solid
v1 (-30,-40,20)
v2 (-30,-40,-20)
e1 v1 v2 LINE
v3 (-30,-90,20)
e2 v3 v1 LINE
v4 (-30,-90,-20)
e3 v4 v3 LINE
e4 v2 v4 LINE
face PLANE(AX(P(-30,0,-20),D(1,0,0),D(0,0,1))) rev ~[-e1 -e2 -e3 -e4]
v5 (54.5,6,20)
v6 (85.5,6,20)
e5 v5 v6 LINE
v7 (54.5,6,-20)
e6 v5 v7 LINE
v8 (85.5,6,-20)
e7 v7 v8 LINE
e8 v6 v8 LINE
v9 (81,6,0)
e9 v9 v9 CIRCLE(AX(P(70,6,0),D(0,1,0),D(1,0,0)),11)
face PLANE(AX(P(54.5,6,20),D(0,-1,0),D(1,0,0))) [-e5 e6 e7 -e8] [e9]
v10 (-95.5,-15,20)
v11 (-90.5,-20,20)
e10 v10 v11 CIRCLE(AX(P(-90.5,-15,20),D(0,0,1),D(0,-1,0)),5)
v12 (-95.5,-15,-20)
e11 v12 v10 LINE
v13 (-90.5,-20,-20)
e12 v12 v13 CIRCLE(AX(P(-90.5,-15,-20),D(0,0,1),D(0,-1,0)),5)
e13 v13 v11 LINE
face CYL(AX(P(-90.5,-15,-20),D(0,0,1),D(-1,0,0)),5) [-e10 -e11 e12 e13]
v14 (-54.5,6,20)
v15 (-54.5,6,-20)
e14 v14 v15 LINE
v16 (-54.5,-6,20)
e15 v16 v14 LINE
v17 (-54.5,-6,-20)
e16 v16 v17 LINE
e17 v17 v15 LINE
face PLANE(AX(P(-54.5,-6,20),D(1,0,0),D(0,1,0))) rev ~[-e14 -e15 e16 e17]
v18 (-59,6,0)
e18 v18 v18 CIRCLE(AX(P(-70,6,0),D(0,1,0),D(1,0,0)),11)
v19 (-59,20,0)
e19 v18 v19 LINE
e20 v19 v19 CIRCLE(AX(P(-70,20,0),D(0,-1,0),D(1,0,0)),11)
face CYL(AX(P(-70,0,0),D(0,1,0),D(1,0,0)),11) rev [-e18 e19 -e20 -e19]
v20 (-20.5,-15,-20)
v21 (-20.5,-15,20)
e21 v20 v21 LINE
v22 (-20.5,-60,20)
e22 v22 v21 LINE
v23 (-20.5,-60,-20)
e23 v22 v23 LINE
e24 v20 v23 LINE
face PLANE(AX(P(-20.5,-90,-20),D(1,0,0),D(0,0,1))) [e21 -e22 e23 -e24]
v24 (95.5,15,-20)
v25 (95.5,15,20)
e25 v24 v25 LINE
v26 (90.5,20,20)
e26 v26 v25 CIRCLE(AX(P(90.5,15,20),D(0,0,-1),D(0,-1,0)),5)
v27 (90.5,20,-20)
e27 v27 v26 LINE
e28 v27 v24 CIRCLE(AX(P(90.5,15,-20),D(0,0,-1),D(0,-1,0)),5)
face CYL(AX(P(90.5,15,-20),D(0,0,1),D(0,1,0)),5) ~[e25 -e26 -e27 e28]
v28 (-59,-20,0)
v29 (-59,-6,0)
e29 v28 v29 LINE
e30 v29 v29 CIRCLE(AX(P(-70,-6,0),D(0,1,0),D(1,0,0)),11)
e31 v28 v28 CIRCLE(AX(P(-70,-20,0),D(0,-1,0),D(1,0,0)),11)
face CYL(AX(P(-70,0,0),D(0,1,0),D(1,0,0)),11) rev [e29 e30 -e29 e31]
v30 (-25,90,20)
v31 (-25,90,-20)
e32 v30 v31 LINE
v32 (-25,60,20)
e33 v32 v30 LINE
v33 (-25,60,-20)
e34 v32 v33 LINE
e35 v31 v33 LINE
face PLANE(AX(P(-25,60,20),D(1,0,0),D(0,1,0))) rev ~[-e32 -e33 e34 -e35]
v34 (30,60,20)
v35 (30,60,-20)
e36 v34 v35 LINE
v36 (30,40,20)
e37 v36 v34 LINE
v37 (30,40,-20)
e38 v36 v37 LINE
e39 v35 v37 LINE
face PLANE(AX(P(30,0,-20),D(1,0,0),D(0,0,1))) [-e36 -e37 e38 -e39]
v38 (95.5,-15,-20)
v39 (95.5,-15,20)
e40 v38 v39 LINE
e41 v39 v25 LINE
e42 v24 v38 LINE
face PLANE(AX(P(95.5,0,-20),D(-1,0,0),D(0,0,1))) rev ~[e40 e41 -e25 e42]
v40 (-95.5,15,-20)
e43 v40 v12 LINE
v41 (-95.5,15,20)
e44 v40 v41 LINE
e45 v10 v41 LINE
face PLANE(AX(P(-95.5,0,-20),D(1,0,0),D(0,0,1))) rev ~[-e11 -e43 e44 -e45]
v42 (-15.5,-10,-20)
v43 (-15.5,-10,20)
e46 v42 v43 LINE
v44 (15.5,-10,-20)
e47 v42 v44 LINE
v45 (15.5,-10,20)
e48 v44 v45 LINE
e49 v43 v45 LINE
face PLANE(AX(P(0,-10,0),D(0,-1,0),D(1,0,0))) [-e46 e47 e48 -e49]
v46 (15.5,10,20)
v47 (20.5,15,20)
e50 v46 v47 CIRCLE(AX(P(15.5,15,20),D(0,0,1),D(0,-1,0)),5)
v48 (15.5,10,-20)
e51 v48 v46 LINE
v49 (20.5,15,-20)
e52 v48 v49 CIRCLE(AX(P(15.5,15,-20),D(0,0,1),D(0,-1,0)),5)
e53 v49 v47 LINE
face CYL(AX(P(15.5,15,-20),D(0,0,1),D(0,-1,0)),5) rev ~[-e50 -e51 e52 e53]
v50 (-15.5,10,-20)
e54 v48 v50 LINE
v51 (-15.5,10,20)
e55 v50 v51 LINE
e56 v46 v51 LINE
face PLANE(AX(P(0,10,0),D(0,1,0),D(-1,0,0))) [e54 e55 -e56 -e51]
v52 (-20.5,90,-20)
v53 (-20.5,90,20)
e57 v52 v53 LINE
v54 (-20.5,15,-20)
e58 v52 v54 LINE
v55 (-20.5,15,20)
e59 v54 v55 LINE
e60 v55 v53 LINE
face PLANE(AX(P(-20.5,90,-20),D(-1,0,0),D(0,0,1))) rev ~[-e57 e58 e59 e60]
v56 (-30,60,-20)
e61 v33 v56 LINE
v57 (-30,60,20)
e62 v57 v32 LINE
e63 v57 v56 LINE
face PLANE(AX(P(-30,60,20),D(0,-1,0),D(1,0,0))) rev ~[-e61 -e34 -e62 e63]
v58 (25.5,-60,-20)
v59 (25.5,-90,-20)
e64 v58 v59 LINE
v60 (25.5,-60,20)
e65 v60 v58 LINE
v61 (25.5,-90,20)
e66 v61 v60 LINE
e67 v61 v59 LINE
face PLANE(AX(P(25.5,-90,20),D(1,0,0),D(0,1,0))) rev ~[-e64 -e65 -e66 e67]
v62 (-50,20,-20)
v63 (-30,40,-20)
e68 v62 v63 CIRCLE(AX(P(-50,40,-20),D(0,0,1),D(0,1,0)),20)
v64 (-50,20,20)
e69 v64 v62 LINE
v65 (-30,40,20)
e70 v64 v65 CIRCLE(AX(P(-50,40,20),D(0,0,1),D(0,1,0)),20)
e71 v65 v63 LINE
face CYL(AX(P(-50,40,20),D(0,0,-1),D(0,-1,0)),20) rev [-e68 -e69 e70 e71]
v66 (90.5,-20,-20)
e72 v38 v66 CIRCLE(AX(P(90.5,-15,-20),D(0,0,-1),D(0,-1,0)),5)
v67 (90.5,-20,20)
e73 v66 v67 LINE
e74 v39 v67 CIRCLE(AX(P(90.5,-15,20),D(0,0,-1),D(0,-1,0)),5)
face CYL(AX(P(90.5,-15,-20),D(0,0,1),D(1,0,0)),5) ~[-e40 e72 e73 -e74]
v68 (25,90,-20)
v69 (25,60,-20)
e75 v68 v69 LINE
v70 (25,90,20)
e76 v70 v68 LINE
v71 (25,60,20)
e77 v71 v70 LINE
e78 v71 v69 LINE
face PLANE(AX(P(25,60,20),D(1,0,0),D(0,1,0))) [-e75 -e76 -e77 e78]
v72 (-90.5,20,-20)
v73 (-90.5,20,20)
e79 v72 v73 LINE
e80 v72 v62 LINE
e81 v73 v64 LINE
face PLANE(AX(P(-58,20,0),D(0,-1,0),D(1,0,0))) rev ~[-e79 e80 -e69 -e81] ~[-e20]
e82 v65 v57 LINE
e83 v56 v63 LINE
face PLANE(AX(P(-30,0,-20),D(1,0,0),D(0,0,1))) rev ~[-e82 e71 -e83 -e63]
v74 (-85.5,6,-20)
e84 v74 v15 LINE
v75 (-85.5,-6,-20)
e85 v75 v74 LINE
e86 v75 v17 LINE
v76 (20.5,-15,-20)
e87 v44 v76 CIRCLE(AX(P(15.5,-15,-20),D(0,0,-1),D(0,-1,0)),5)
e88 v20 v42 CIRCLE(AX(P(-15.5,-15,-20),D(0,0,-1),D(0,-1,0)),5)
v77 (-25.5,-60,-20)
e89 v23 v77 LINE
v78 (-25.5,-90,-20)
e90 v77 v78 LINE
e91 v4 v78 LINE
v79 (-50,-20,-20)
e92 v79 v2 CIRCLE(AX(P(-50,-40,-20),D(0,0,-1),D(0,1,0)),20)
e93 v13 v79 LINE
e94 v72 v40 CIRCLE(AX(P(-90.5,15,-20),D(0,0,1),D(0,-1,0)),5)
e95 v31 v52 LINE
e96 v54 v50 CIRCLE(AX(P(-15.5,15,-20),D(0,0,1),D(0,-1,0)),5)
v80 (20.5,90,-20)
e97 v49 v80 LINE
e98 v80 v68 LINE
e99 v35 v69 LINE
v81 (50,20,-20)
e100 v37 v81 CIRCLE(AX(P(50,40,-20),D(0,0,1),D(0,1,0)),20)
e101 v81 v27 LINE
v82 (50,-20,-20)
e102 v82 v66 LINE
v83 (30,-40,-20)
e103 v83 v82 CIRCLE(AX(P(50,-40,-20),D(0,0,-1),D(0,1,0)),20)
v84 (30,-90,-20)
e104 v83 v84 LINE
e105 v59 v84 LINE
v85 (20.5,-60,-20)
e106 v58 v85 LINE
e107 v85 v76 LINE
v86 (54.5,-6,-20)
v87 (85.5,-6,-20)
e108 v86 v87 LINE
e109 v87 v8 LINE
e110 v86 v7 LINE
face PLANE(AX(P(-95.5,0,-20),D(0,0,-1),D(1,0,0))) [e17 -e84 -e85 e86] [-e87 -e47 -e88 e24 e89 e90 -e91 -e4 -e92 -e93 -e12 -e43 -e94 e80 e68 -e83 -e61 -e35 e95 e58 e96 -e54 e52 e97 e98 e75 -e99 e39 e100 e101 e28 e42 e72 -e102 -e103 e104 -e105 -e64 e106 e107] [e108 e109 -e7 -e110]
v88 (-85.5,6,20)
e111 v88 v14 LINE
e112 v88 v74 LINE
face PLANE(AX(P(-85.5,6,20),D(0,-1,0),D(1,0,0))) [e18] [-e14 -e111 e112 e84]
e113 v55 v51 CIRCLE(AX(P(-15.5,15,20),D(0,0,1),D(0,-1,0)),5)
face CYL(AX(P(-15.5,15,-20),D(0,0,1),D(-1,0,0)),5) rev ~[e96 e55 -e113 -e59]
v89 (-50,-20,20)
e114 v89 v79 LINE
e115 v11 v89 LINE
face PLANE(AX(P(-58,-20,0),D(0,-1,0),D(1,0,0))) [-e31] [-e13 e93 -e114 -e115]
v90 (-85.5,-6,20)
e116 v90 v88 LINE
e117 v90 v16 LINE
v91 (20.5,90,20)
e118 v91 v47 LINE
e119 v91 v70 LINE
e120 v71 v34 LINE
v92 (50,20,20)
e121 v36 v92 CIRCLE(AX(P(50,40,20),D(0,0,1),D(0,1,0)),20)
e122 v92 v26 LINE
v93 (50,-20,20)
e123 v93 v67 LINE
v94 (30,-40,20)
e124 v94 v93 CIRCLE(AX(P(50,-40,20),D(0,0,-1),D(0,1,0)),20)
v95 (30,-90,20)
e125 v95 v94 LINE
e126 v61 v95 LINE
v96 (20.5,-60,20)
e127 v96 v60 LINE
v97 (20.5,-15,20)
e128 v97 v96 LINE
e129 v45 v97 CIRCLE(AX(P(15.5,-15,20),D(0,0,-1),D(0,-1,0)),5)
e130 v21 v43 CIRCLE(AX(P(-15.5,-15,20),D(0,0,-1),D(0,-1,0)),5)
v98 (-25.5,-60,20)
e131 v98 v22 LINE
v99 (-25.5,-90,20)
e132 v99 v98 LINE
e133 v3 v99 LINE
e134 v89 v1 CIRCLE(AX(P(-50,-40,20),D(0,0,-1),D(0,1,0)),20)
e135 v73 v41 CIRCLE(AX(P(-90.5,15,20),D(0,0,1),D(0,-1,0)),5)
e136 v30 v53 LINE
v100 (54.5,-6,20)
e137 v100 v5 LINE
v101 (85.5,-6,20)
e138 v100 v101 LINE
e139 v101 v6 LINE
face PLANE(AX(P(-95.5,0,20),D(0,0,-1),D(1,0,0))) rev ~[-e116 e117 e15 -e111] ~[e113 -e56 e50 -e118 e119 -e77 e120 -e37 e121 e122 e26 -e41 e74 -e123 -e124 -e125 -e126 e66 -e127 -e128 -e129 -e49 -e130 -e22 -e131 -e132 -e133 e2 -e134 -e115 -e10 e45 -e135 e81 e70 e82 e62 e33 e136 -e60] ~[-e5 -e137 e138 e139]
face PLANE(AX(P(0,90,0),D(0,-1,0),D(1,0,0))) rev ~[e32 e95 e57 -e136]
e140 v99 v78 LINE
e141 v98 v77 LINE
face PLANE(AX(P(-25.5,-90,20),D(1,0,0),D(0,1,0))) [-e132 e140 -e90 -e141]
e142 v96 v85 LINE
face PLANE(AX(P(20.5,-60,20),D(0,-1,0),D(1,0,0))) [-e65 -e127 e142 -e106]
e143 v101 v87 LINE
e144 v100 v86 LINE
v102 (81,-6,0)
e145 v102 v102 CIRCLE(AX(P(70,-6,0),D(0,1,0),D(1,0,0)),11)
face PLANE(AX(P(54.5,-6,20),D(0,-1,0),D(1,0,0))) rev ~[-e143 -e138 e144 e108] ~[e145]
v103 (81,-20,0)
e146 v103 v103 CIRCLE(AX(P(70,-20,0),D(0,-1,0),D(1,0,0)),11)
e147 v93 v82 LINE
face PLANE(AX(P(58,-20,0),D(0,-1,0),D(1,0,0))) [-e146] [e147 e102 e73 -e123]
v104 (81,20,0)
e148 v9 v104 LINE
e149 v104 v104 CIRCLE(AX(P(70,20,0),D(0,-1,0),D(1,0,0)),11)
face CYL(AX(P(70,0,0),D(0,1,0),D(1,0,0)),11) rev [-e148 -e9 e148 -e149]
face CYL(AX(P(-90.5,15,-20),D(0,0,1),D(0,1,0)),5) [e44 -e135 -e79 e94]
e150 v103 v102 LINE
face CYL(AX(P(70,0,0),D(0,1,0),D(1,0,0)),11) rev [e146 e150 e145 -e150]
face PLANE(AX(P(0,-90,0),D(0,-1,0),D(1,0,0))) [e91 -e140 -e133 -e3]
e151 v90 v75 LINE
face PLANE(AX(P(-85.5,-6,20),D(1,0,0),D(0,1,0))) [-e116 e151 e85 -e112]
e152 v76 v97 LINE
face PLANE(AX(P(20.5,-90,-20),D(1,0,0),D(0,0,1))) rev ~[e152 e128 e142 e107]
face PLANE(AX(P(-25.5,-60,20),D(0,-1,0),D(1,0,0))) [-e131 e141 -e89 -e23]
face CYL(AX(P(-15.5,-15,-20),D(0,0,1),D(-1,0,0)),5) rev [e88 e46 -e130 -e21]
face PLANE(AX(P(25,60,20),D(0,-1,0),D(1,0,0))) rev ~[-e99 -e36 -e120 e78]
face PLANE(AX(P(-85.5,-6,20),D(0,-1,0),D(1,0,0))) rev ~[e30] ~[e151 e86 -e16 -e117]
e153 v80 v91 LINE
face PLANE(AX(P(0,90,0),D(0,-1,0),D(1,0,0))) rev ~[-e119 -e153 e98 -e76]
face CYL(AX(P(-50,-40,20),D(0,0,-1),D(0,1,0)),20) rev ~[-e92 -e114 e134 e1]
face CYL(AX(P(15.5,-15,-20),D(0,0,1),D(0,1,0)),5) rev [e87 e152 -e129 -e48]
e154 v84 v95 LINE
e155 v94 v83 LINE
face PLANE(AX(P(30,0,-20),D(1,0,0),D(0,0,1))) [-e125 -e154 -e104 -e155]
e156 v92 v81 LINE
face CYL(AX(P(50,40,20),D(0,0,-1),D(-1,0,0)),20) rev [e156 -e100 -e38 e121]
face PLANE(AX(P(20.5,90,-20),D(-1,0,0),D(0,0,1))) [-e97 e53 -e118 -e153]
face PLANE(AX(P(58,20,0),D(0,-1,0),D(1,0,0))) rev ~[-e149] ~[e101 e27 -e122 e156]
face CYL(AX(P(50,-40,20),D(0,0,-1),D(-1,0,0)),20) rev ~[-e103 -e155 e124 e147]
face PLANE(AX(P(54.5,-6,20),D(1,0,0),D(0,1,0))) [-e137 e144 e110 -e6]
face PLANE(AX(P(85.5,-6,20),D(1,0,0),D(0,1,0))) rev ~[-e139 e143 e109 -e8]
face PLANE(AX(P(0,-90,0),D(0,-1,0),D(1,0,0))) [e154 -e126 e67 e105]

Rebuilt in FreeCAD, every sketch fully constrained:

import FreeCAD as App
import Part
import Sketcher
Q = App.Units.Quantity


def edges_at(feature, points):
    """Names of the edges that pass closest to the given points."""
    edges = feature.Shape.Edges
    near = lambda p: min(range(len(edges)), key=lambda i: edges[i].distToShape(Part.Vertex(*p))[0])
    return sorted({f"Edge{near(p) + 1}" for p in points})


def add_polygon(sketch, points):
    """Adds a closed chain of lines whose ends are joined by coincident constraints."""
    first, n = sketch.GeometryCount, len(points)
    for a, b in zip(points, points[1:] + points[:1]):
        sketch.addGeometry(Part.LineSegment(App.Vector(*a, 0), App.Vector(*b, 0)), False)
    for i in range(n):
        sketch.addConstraint(Sketcher.Constraint("Coincident", first + i, 2, first + (i + 1) % n, 1))

doc = App.newDocument("Part")
params = doc.addObject("Spreadsheet::Sheet", "Params")
for row, (alias, value) in enumerate([
    ("sketch1_width", "60 mm"),
    ("sketch1_height", "40 mm"),
    ("pad1_length", "180 mm"),
    ("sketch2_width", "41 mm"),
    ("sketch2_height", "40 mm"),
    ("pocket1_length", "80 mm"),
    ("sketch3_width", "41 mm"),
    ("sketch3_height", "40 mm"),
    ("pocket2_length", "80 mm"),
    ("sketch4_diameter", "22 mm"),
    ("sketch4_width", "75 mm"),
    ("sketch4_height", "40 mm"),
    ("pad2_length", "40 mm"),
    ("sketch5_width", "31 mm"),
    ("sketch5_height", "12 mm"),
    ("pocket3_length", "40 mm"),
    ("fillet_radius", "20 mm"),
    ("fillet2_radius", "5 mm"),
    ("fillet3_radius", "5 mm"),
    ("sketch6_width", "5 mm"),
    ("sketch6_height", "30 mm"),
    ("pocket4_length", "80 mm"),
], start=1):
    params.set(f"A{row}", alias)
    params.set(f"B{row}", "=" + value)
    params.setAlias(f"B{row}", alias)

body = doc.addObject("PartDesign::Body", "Body")

# Sketch on XZ plane
sketch1 = body.newObject("Sketcher::SketchObject", "Sketch")
sketch1.AttachmentSupport = (doc.getObject("XZ_Plane"), [""])
sketch1.MapMode = "FlatFace"
add_polygon(sketch1, [(-30, 20), (-30, -20), (30, -20), (30, 20)])  # lines 0-3
sketch1.addConstraint([
    Sketcher.Constraint("Vertical", 0),
    Sketcher.Constraint("Horizontal", 1),
    Sketcher.Constraint("Vertical", 2),
    Sketcher.Constraint("Horizontal", 3),
    Sketcher.Constraint("Symmetric", 0, 2, 2, 2, -1, 1),
    Sketcher.Constraint("DistanceX", 1, 1, 1, 2, Q("60 mm")),
    Sketcher.Constraint("DistanceY", 0, 2, 0, 1, Q("40 mm")),
])
sketch1.setExpression("Constraints[9]", "Params.sketch1_width")
sketch1.setExpression("Constraints[10]", "Params.sketch1_height")
pad1 = body.newObject("PartDesign::Pad", "Pad")
pad1.Profile = sketch1
pad1.setExpression("Length", "Params.pad1_length")
pad1.Midplane = True

# Sketch on XZ plane
sketch2 = body.newObject("Sketcher::SketchObject", "Sketch001")
sketch2.AttachmentSupport = (doc.getObject("XZ_Plane"), [""])
sketch2.MapMode = "FlatFace"
sketch2.AttachmentOffset = App.Placement(App.Vector(0, 0, 90), App.Rotation())
add_polygon(sketch2, [(-20.5, 20), (-20.5, -20), (20.5, -20), (20.5, 20)])  # lines 0-3
sketch2.addConstraint([
    Sketcher.Constraint("Vertical", 0),
    Sketcher.Constraint("Horizontal", 1),
    Sketcher.Constraint("Vertical", 2),
    Sketcher.Constraint("Horizontal", 3),
    Sketcher.Constraint("Symmetric", 0, 2, 2, 2, -1, 1),
    Sketcher.Constraint("DistanceX", 1, 1, 1, 2, Q("41 mm")),
    Sketcher.Constraint("DistanceY", 0, 2, 0, 1, Q("40 mm")),
])
sketch2.setExpression("Constraints[9]", "Params.sketch2_width")
sketch2.setExpression("Constraints[10]", "Params.sketch2_height")
pocket1 = body.newObject("PartDesign::Pocket", "Pocket")
pocket1.Profile = sketch2
pocket1.setExpression("Length", "Params.pocket1_length")

# Sketch on XZ plane
sketch3 = body.newObject("Sketcher::SketchObject", "Sketch002")
sketch3.AttachmentSupport = (doc.getObject("XZ_Plane"), [""])
sketch3.MapMode = "FlatFace"
sketch3.AttachmentOffset = App.Placement(App.Vector(0, 0, -90), App.Rotation())
add_polygon(sketch3, [(20.5, 20), (20.5, -20), (-20.5, -20), (-20.5, 20)])  # lines 0-3
sketch3.addConstraint([
    Sketcher.Constraint("Vertical", 0),
    Sketcher.Constraint("Horizontal", 1),
    Sketcher.Constraint("Vertical", 2),
    Sketcher.Constraint("Horizontal", 3),
    Sketcher.Constraint("Symmetric", 0, 2, 2, 2, -1, 1),
    Sketcher.Constraint("DistanceX", 1, 2, 1, 1, Q("41 mm")),
    Sketcher.Constraint("DistanceY", 0, 2, 0, 1, Q("40 mm")),
])
sketch3.setExpression("Constraints[9]", "Params.sketch3_width")
sketch3.setExpression("Constraints[10]", "Params.sketch3_height")
pocket2 = body.newObject("PartDesign::Pocket", "Pocket001")
pocket2.Profile = sketch3
pocket2.setExpression("Length", "Params.pocket2_length")
pocket2.Reversed = True

# Sketch on XZ plane
sketch4 = body.newObject("Sketcher::SketchObject", "Sketch003")
sketch4.AttachmentSupport = (doc.getObject("XZ_Plane"), [""])
sketch4.MapMode = "FlatFace"
add_polygon(sketch4, [(20.5, 20), (20.5, -20), (95.5, -20), (95.5, 20)])  # lines 0-3
sketch4.addGeometry(Part.Circle(App.Vector(70, 0, 0), App.Vector(0, 0, 1), 11), False)  # 4
add_polygon(sketch4, [(-95.5, 20), (-95.5, -20), (-20.5, -20), (-20.5, 20)])  # lines 5-8
sketch4.addGeometry(Part.Circle(App.Vector(-70, 0, 0), App.Vector(0, 0, 1), 11), False)  # 9
sketch4.addConstraint([
    Sketcher.Constraint("Vertical", 0),
    Sketcher.Constraint("Horizontal", 1),
    Sketcher.Constraint("Vertical", 2),
    Sketcher.Constraint("Horizontal", 3),
    Sketcher.Constraint("Vertical", 5),
    Sketcher.Constraint("Horizontal", 6),
    Sketcher.Constraint("Vertical", 7),
    Sketcher.Constraint("Horizontal", 8),
    Sketcher.Constraint("Equal", 4, 9),
    Sketcher.Constraint("Symmetric", 4, 3, 9, 3, -1, 1),
    Sketcher.Constraint("Symmetric", 2, 2, 5, 2, -1, 1),
    Sketcher.Constraint("Symmetric", 0, 2, 7, 2, -1, 1),
    Sketcher.Constraint("PointOnObject", 4, 3, -1),
    Sketcher.Constraint("Horizontal", 1, 2, 5, 2),
    Sketcher.Constraint("Diameter", 4, Q("22 mm")),
    Sketcher.Constraint("DistanceX", 1, 1, 1, 2, Q("75 mm")),
    Sketcher.Constraint("DistanceY", 0, 2, 0, 1, Q("40 mm")),
    Sketcher.Constraint("DistanceX", -1, 1, 4, 3, Q("70 mm")),
    Sketcher.Constraint("DistanceX", 5, 2, 0, 2, Q("116 mm")),
])
sketch4.setExpression("Constraints[22]", "Params.sketch4_diameter")
sketch4.setExpression("Constraints[23]", "Params.sketch4_width")
sketch4.setExpression("Constraints[24]", "Params.sketch4_height")
pad2 = body.newObject("PartDesign::Pad", "Pad001")
pad2.Profile = sketch4
pad2.setExpression("Length", "Params.pad2_length")
pad2.Midplane = True

# Sketch on XY plane
sketch5 = body.newObject("Sketcher::SketchObject", "Sketch004")
sketch5.AttachmentSupport = (doc.getObject("XY_Plane"), [""])
sketch5.MapMode = "FlatFace"
sketch5.AttachmentOffset = App.Placement(App.Vector(0, 0, 20), App.Rotation())
add_polygon(sketch5, [(54.5, 6), (54.5, -6), (85.5, -6), (85.5, 6)])  # lines 0-3
add_polygon(sketch5, [(-85.5, 6), (-85.5, -6), (-54.5, -6), (-54.5, 6)])  # lines 4-7
sketch5.addConstraint([
    Sketcher.Constraint("Vertical", 0),
    Sketcher.Constraint("Horizontal", 1),
    Sketcher.Constraint("Vertical", 2),
    Sketcher.Constraint("Horizontal", 3),
    Sketcher.Constraint("Vertical", 4),
    Sketcher.Constraint("Horizontal", 5),
    Sketcher.Constraint("Vertical", 6),
    Sketcher.Constraint("Horizontal", 7),
    Sketcher.Constraint("Symmetric", 2, 2, 4, 2, -1, 1),
    Sketcher.Constraint("Symmetric", 0, 2, 6, 2, -1, 1),
    Sketcher.Constraint("Horizontal", 1, 2, 4, 2),
    Sketcher.Constraint("DistanceX", 1, 1, 1, 2, Q("31 mm")),
    Sketcher.Constraint("DistanceY", 0, 2, 0, 1, Q("12 mm")),
    Sketcher.Constraint("DistanceX", 4, 2, 0, 2, Q("140 mm")),
])
sketch5.setExpression("Constraints[19]", "Params.sketch5_width")
sketch5.setExpression("Constraints[20]", "Params.sketch5_height")
pocket3 = body.newObject("PartDesign::Pocket", "Pocket002")
pocket3.Profile = sketch5
pocket3.setExpression("Length", "Params.pocket3_length")
doc.recompute()

fillet = body.newObject("PartDesign::Fillet", "Fillet")
fillet.Base = (pocket3, edges_at(pocket3, [
    (-30, -20, 0),
    (30, -20, 0),
    (-30, 20, 0),
    (30, 20, 0),
]))
fillet.setExpression("Radius", "Params.fillet_radius")
doc.recompute()

fillet2 = body.newObject("PartDesign::Fillet", "Fillet001")
fillet2.Base = (fillet, edges_at(fillet, [
    (-95.5, 20, 0),
    (-95.5, -20, 0),
    (95.5, -20, 0),
    (95.5, 20, 0),
]))
fillet2.setExpression("Radius", "Params.fillet2_radius")
doc.recompute()

fillet3 = body.newObject("PartDesign::Fillet", "Fillet002")
fillet3.Base = (fillet2, edges_at(fillet2, [
    (-20.5, -10, 0),
    (-20.5, 10, 0),
    (20.5, 10, 0),
    (20.5, -10, 0),
]))
fillet3.setExpression("Radius", "Params.fillet3_radius")

# Sketch on XY plane
sketch6 = body.newObject("Sketcher::SketchObject", "Sketch005")
sketch6.AttachmentSupport = (doc.getObject("XY_Plane"), [""])
sketch6.MapMode = "FlatFace"
sketch6.AttachmentOffset = App.Placement(App.Vector(0, 0, 20), App.Rotation())
add_polygon(sketch6, [(-30, 90), (-30, 60), (-25, 60), (-25, 90)])  # lines 0-3
add_polygon(sketch6, [(25, 90), (25, 60), (30, 60), (30, 90)])  # lines 4-7
add_polygon(sketch6, [(-25.5, -60), (-25.5, -90), (-20.5, -90), (-20.5, -60)])  # lines 8-11
add_polygon(sketch6, [(20.5, -60), (20.5, -90), (25.5, -90), (25.5, -60)])  # lines 12-15
sketch6.addConstraint([
    Sketcher.Constraint("Vertical", 0),
    Sketcher.Constraint("Horizontal", 1),
    Sketcher.Constraint("Vertical", 2),
    Sketcher.Constraint("Horizontal", 3),
    Sketcher.Constraint("Vertical", 4),
    Sketcher.Constraint("Horizontal", 5),
    Sketcher.Constraint("Vertical", 6),
    Sketcher.Constraint("Horizontal", 7),
    Sketcher.Constraint("Vertical", 8),
    Sketcher.Constraint("Horizontal", 9),
    Sketcher.Constraint("Vertical", 10),
    Sketcher.Constraint("Horizontal", 11),
    Sketcher.Constraint("Vertical", 12),
    Sketcher.Constraint("Horizontal", 13),
    Sketcher.Constraint("Vertical", 14),
    Sketcher.Constraint("Horizontal", 15),
    Sketcher.Constraint("Symmetric", 1, 2, 4, 2, -2),
    Sketcher.Constraint("Symmetric", 3, 2, 6, 2, -2),
    Sketcher.Constraint("Symmetric", 9, 2, 12, 2, -2),
    Sketcher.Constraint("Symmetric", 11, 2, 14, 2, -2),
    Sketcher.Constraint("Equal", 7, 9),
    Sketcher.Constraint("Equal", 6, 8),
    Sketcher.Constraint("DistanceX", 1, 1, 1, 2, Q("5 mm")),
    Sketcher.Constraint("DistanceY", 0, 2, 0, 1, Q("30 mm")),
    Sketcher.Constraint("DistanceX", 0, 2, -1, 1, Q("30 mm")),
    Sketcher.Constraint("DistanceY", -1, 1, 0, 2, Q("60 mm")),
    Sketcher.Constraint("DistanceY", 8, 2, -1, 1, Q("90 mm")),
    Sketcher.Constraint("DistanceX", 9, 2, 12, 2, Q("41 mm")),
])
sketch6.setExpression("Constraints[38]", "Params.sketch6_width")
sketch6.setExpression("Constraints[39]", "Params.sketch6_height")
pocket4 = body.newObject("PartDesign::Pocket", "Pocket003")
pocket4.Profile = sketch6
pocket4.setExpression("Length", "Params.pocket4_length")

doc.recompute()
